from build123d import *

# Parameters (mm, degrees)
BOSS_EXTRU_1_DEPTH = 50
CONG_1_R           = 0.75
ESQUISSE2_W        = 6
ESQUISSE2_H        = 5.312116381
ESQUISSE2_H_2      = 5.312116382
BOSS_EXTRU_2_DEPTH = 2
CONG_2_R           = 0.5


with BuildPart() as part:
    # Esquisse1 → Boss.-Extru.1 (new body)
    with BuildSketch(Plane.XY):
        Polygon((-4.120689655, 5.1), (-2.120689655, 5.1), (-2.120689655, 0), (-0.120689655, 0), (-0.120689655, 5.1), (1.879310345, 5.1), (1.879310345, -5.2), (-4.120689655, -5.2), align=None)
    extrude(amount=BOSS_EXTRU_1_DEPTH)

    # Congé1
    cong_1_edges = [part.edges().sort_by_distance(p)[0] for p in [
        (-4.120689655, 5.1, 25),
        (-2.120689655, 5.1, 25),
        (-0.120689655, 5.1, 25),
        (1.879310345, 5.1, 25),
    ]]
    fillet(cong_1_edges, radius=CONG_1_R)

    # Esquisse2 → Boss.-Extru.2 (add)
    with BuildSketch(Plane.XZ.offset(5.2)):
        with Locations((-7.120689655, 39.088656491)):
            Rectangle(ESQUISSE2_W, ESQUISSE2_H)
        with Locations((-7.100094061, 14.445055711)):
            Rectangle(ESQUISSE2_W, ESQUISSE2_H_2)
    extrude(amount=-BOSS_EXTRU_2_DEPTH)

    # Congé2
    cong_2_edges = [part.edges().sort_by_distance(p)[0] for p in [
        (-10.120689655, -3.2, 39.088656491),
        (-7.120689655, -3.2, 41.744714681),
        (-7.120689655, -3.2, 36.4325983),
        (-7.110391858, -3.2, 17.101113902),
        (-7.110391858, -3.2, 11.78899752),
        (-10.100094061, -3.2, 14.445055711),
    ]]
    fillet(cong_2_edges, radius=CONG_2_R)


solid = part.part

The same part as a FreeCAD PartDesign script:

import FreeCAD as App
import Part
import Sketcher
from FreeCAD import Vector


def edges_at(feature, points):
    """Names of the edges that pass closest to the given points."""
    edges = feature.Shape.Edges
    near = lambda p: min(range(len(edges)), key=lambda i: edges[i].distToShape(Part.Vertex(*p))[0])
    return sorted({f"Edge{near(p) + 1}" for p in points})

doc = App.newDocument("Part")
body = doc.addObject("PartDesign::Body", "Body")

# Sketch on XY plane
sketch1 = doc.addObject("Sketcher::SketchObject", "Sketch")
body.addObject(sketch1)
sketch1.AttachmentSupport = (doc.XY_Plane, [""])
sketch1.MapMode = "FlatFace"
sketch1.addGeometry([
    Part.LineSegment(Vector(-2.12069, 5.1, 0), Vector(-4.12069, 5.1, 0)),  # 0
    Part.LineSegment(Vector(-4.12069, 5.1, 0), Vector(-4.12069, -5.2, 0)),  # 1
    Part.LineSegment(Vector(-4.12069, -5.2, 0), Vector(1.87931, -5.2, 0)),  # 2
    Part.LineSegment(Vector(1.87931, -5.2, 0), Vector(1.87931, 5.1, 0)),  # 3
    Part.LineSegment(Vector(1.87931, 5.1, 0), Vector(-0.12069, 5.1, 0)),  # 4
    Part.LineSegment(Vector(-0.12069, 5.1, 0), Vector(-0.12069, 0, 0)),  # 5
    Part.LineSegment(Vector(-0.12069, 0, 0), Vector(-2.12069, 0, 0)),  # 6
    Part.LineSegment(Vector(-2.12069, 0, 0), Vector(-2.12069, 5.1, 0)),  # 7
], False)
sketch1.addConstraint([
    Sketcher.Constraint("Coincident", 0, 2, 1, 1),
    Sketcher.Constraint("Coincident", 1, 2, 2, 1),
    Sketcher.Constraint("Coincident", 2, 2, 3, 1),
    Sketcher.Constraint("Coincident", 3, 2, 4, 1),
    Sketcher.Constraint("Coincident", 4, 2, 5, 1),
    Sketcher.Constraint("Coincident", 5, 2, 6, 1),
    Sketcher.Constraint("Coincident", 6, 2, 7, 1),
    Sketcher.Constraint("Coincident", 7, 2, 0, 1),
    Sketcher.Constraint("Horizontal", 0),
    Sketcher.Constraint("Vertical", 1),
    Sketcher.Constraint("Horizontal", 2),
    Sketcher.Constraint("Vertical", 3),
    Sketcher.Constraint("Horizontal", 4),
    Sketcher.Constraint("Vertical", 5),
    Sketcher.Constraint("Horizontal", 6),
    Sketcher.Constraint("Vertical", 7),
    Sketcher.Constraint("PointOnObject", 5, 2, -1),
    Sketcher.Constraint("Horizontal", 0, 2, 3, 2),
    Sketcher.Constraint("Equal", 0, 4),
    Sketcher.Constraint("Equal", 4, 6),
    Sketcher.Constraint("DistanceX", 0, 2, 0, 1, 2.0),
    Sketcher.Constraint("DistanceY", 1, 2, 1, 1, 10.3),
    Sketcher.Constraint("DistanceY", 5, 2, 5, 1, 5.1),
    Sketcher.Constraint("DistanceX", 0, 2, -1, 1, 4.12069),
])
pad1 = doc.addObject("PartDesign::Pad", "Pad")
body.addObject(pad1)
pad1.Profile = sketch1
pad1.Length = 50
doc.recompute()

fillet = doc.addObject("PartDesign::Fillet", "Fillet")
body.addObject(fillet)
fillet.Base = (pad1, edges_at(pad1, [
    (-4.121, 5.1, 25),
    (-2.121, 5.1, 25),
    (-0.121, 5.1, 25),
    (1.879, 5.1, 25),
]))
fillet.Radius = 0.75

# Sketch on XZ plane
sketch2 = doc.addObject("Sketcher::SketchObject", "Sketch001")
body.addObject(sketch2)
sketch2.AttachmentSupport = (doc.XZ_Plane, [""])
sketch2.MapMode = "FlatFace"
sketch2.AttachmentOffset = App.Placement(Vector(0, 0, 5.2), App.Rotation())
sketch2.addGeometry([
    Part.LineSegment(Vector(-10.12069, 41.744715, 0), Vector(-10.12069, 36.432598, 0)),  # 0
    Part.LineSegment(Vector(-10.12069, 36.432598, 0), Vector(-4.12069, 36.432598, 0)),  # 1
    Part.LineSegment(Vector(-4.12069, 36.432598, 0), Vector(-4.12069, 41.744715, 0)),  # 2
    Part.LineSegment(Vector(-4.12069, 41.744715, 0), Vector(-10.12069, 41.744715, 0)),  # 3
    Part.LineSegment(Vector(-10.100094, 17.101114, 0), Vector(-10.100094, 11.788998, 0)),  # 4
    Part.LineSegment(Vector(-10.100094, 11.788998, 0), Vector(-4.100094, 11.788998, 0)),  # 5
    Part.LineSegment(Vector(-4.100094, 11.788998, 0), Vector(-4.100094, 17.101114, 0)),  # 6
    Part.LineSegment(Vector(-4.100094, 17.101114, 0), Vector(-10.100094, 17.101114, 0)),  # 7
], False)
sketch2.addConstraint([
    Sketcher.Constraint("Coincident", 0, 2, 1, 1),
    Sketcher.Constraint("Coincident", 1, 2, 2, 1),
    Sketcher.Constraint("Coincident", 2, 2, 3, 1),
    Sketcher.Constraint("Coincident", 3, 2, 0, 1),
    Sketcher.Constraint("Coincident", 4, 2, 5, 1),
    Sketcher.Constraint("Coincident", 5, 2, 6, 1),
    Sketcher.Constraint("Coincident", 6, 2, 7, 1),
    Sketcher.Constraint("Coincident", 7, 2, 4, 1),
    Sketcher.Constraint("Vertical", 0),
    Sketcher.Constraint("Horizontal", 1),
    Sketcher.Constraint("Vertical", 2),
    Sketcher.Constraint("Horizontal", 3),
    Sketcher.Constraint("Vertical", 4),
    Sketcher.Constraint("Horizontal", 5),
    Sketcher.Constraint("Vertical", 6),
    Sketcher.Constraint("Horizontal", 7),
    Sketcher.Constraint("Equal", 3, 5),
    Sketcher.Constraint("Equal", 2, 4),
    Sketcher.Constraint("DistanceX", 1, 1, 1, 2, 6.0),
    Sketcher.Constraint("DistanceY", -1, 1, 0, 2, 36.432598),
    Sketcher.Constraint("DistanceY", 4, 2, 0, 2, 24.643601),
    Sketcher.Constraint("DistanceY", 0, 2, 0, 1, 5.312116),
    Sketcher.Constraint("DistanceX", 0, 2, -1, 1, 10.12069),
    Sketcher.Constraint("DistanceX", 4, 2, -1, 1, 10.100094),
])
pad2 = doc.addObject("PartDesign::Pad", "Pad001")
body.addObject(pad2)
pad2.Profile = sketch2
pad2.Length = 2
pad2.Reversed = True
doc.recompute()

fillet2 = doc.addObject("PartDesign::Fillet", "Fillet001")
body.addObject(fillet2)
fillet2.Base = (pad2, edges_at(pad2, [
    (-10.121, -3.2, 39.089),
    (-7.121, -3.2, 41.745),
    (-7.121, -3.2, 36.433),
    (-7.11, -3.2, 17.101),
    (-7.11, -3.2, 11.789),
    (-10.1, -3.2, 14.445),
]))
fillet2.Radius = 0.5

doc.recompute()
